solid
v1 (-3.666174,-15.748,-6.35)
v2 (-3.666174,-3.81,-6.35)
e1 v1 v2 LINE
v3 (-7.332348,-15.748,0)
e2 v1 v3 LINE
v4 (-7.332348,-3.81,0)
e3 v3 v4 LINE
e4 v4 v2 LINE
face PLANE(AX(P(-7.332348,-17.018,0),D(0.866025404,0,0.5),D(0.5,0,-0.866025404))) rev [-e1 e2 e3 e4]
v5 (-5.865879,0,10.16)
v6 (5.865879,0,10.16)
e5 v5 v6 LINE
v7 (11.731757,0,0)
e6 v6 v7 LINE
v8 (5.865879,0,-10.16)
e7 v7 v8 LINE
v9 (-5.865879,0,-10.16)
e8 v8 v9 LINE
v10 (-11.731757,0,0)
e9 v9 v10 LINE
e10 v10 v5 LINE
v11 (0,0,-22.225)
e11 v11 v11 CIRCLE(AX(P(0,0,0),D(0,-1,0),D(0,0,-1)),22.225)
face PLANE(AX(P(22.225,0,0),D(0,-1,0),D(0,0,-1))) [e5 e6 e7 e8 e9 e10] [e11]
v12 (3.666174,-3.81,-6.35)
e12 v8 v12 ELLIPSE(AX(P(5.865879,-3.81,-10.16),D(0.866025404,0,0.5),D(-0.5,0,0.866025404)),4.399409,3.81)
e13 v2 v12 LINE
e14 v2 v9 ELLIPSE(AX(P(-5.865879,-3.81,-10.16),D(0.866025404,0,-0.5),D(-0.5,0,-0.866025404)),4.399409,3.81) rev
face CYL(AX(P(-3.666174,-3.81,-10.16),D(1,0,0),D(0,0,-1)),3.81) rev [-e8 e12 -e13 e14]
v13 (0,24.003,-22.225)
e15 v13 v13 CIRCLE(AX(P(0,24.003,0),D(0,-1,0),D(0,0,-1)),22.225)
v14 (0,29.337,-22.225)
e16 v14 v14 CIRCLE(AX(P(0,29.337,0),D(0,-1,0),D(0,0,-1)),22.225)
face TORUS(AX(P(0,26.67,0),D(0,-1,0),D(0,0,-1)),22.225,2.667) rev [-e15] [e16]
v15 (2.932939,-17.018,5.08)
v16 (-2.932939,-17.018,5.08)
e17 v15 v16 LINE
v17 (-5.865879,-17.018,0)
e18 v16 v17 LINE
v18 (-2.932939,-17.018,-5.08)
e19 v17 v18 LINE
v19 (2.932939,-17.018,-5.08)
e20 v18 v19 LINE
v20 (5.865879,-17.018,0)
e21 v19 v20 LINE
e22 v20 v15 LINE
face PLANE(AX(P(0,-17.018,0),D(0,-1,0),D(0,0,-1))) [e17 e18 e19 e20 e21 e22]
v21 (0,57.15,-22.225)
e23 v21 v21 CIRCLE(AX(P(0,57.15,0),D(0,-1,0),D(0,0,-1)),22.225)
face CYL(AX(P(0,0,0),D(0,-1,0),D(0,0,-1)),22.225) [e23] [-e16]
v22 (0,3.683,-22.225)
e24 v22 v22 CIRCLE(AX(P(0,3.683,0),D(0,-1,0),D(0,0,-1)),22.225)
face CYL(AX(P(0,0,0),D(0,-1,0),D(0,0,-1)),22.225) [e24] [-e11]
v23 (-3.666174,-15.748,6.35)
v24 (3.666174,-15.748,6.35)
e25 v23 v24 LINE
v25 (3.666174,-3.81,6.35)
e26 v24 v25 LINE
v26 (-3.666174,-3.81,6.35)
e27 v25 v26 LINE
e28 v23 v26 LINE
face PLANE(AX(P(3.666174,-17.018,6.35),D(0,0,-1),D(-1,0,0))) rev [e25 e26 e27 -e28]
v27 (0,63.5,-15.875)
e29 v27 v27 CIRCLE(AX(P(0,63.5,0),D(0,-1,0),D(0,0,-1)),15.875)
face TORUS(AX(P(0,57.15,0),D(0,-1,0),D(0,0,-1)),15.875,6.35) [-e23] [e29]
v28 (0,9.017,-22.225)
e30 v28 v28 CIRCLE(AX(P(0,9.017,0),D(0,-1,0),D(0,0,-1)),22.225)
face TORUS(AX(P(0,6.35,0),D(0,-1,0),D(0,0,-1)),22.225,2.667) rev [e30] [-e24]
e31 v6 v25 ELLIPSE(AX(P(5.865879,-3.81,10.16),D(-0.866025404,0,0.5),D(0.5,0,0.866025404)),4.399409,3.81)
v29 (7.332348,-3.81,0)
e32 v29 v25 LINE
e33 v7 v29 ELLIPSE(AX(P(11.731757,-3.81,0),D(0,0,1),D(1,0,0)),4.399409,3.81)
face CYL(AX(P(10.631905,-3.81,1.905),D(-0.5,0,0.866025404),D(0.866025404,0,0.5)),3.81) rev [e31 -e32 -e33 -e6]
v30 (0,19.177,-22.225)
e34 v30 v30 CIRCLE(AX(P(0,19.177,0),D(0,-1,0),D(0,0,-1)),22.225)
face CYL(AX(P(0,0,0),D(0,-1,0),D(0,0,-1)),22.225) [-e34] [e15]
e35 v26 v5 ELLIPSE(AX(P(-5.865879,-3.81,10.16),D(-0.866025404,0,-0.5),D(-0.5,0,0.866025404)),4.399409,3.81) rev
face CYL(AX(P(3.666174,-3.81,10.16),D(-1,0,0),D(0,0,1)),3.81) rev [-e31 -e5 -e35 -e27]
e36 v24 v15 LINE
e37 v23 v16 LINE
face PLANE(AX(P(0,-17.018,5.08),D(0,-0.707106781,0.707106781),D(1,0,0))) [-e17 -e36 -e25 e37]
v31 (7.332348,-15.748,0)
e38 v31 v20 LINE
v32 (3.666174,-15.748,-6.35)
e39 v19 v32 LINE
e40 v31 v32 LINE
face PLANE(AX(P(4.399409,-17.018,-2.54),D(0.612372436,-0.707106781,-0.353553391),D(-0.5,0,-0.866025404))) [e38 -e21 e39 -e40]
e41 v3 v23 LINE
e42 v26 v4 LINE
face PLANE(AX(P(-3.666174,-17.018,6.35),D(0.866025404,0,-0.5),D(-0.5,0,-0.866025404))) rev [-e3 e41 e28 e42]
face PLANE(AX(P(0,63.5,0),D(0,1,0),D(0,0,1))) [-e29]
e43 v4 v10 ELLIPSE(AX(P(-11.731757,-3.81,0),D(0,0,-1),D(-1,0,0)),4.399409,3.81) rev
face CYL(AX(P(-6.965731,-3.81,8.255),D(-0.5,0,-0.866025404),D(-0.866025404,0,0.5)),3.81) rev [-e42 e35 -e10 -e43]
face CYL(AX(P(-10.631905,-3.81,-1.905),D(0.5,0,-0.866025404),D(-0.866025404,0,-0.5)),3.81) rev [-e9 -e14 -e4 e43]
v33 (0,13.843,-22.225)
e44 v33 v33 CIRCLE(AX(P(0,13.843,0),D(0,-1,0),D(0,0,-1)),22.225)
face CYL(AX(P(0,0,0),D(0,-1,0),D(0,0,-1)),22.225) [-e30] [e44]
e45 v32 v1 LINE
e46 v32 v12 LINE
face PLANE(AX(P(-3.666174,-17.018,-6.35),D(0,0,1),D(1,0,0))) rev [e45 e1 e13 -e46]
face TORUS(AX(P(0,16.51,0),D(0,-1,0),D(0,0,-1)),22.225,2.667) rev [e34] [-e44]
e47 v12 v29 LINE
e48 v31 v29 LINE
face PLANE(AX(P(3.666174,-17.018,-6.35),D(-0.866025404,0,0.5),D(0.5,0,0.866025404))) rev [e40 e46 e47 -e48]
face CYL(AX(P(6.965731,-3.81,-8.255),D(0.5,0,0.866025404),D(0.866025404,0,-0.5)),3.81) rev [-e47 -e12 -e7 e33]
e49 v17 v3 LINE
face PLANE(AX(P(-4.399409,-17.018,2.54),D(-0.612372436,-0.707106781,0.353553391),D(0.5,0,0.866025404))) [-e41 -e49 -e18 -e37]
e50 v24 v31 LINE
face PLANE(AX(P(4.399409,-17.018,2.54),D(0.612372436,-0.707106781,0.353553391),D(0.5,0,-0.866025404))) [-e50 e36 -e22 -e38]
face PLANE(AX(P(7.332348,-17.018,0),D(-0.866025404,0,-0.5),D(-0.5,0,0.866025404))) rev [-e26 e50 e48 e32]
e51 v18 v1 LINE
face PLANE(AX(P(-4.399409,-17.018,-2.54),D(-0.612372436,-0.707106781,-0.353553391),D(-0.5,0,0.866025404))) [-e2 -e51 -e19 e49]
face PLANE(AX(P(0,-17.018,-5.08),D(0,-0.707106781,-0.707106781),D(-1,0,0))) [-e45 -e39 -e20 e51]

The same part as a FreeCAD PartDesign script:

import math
import FreeCAD as App
import Part
import Sketcher
from FreeCAD import Vector
Q = App.Units.Quantity


def edges_at(feature, points):
    """Names of the edges that pass closest to the given points."""
    edges = feature.Shape.Edges
    near = lambda p: min(range(len(edges)), key=lambda i: edges[i].distToShape(Part.Vertex(*p))[0])
    return sorted({f"Edge{near(p) + 1}" for p in points})

doc = App.newDocument("Part")
body = doc.addObject("PartDesign::Body", "Body")

sketch1 = doc.addObject("Sketcher::SketchObject", "Sketch")
body.addObject(sketch1)
sketch1.AttachmentSupport = (doc.XY_Plane, [""])
sketch1.MapMode = "FlatFace"
sketch1.addGeometry(Part.LineSegment(Vector(0, 63.5, 0), Vector(0, 0, 0)), False)
sketch1.addGeometry(Part.LineSegment(Vector(0, 0, 0), Vector(22.225, 0, 0)), False)
sketch1.addGeometry(Part.LineSegment(Vector(22.225, 0, 0), Vector(22.225, 3.683, 0)), False)
sketch1.addGeometry(Part.ArcOfCircle(Part.Circle(Vector(22.225, 6.35, 0), Vector(0, 0, 1), 2.667), math.radians(90), math.radians(270)), False)
sketch1.addGeometry(Part.LineSegment(Vector(22.225, 9.017, 0), Vector(22.225, 13.843, 0)), False)
sketch1.addGeometry(Part.ArcOfCircle(Part.Circle(Vector(22.225, 16.51, 0), Vector(0, 0, 1), 2.667), math.radians(90), math.radians(270)), False)
sketch1.addGeometry(Part.LineSegment(Vector(22.225, 19.177, 0), Vector(22.225, 24.003, 0)), False)
sketch1.addGeometry(Part.ArcOfCircle(Part.Circle(Vector(22.225, 26.67, 0), Vector(0, 0, 1), 2.667), math.radians(90), math.radians(270)), False)
sketch1.addGeometry(Part.LineSegment(Vector(22.225, 29.337, 0), Vector(22.225, 57.15, 0)), False)
sketch1.addGeometry(Part.ArcOfCircle(Part.Circle(Vector(15.875, 57.15, 0), Vector(0, 0, 1), 6.35), math.radians(0), math.radians(90)), False)
sketch1.addGeometry(Part.LineSegment(Vector(15.875, 63.5, 0), Vector(0, 63.5, 0)), False)
sketch1.addConstraint(Sketcher.Constraint("Coincident", 0, 2, 1, 1))
sketch1.addConstraint(Sketcher.Constraint("Coincident", 1, 2, 2, 1))
sketch1.addConstraint(Sketcher.Constraint("Coincident", 2, 2, 3, 2))
sketch1.addConstraint(Sketcher.Constraint("Coincident", 3, 1, 4, 1))
sketch1.addConstraint(Sketcher.Constraint("Coincident", 4, 2, 5, 2))
sketch1.addConstraint(Sketcher.Constraint("Coincident", 5, 1, 6, 1))
sketch1.addConstraint(Sketcher.Constraint("Coincident", 6, 2, 7, 2))
sketch1.addConstraint(Sketcher.Constraint("Coincident", 7, 1, 8, 1))
sketch1.addConstraint(Sketcher.Constraint("Tangent", 8, 2, 9, 1))
sketch1.addConstraint(Sketcher.Constraint("Tangent", 9, 2, 10, 1))
sketch1.addConstraint(Sketcher.Constraint("Coincident", 10, 2, 0, 1))
sketch1.addConstraint(Sketcher.Constraint("Vertical", 0))
sketch1.addConstraint(Sketcher.Constraint("Horizontal", 1))
sketch1.addConstraint(Sketcher.Constraint("Vertical", 2))
sketch1.addConstraint(Sketcher.Constraint("Vertical", 4))
sketch1.addConstraint(Sketcher.Constraint("Vertical", 6))
sketch1.addConstraint(Sketcher.Constraint("Vertical", 8))
sketch1.addConstraint(Sketcher.Constraint("Horizontal", 10))
sketch1.addConstraint(Sketcher.Constraint("Coincident", 0, 2, -1, 1))
sketch1.addConstraint(Sketcher.Constraint("Equal", 3, 5))
sketch1.addConstraint(Sketcher.Constraint("Equal", 5, 7))
sketch1.addConstraint(Sketcher.Constraint("Vertical", 3, 3, 5, 3))
sketch1.addConstraint(Sketcher.Constraint("Vertical", 5, 3, 7, 3))
sketch1.addConstraint(Sketcher.Constraint("Vertical", 7, 3, 1, 2))
sketch1.addConstraint(Sketcher.Constraint("Vertical", 2, 2, 3, 1))
sketch1.addConstraint(Sketcher.Constraint("Vertical", 4, 2, 5, 1))
sketch1.addConstraint(Sketcher.Constraint("Vertical", 6, 2, 7, 1))
sketch1.addConstraint(Sketcher.Constraint("Equal", 4, 6))
sketch1.addConstraint(Sketcher.Constraint("Radius", 9, Q("0.25 in")))
sketch1.addConstraint(Sketcher.Constraint("DistanceY", 0, 2, 0, 1, Q("2.5 in")))
sketch1.addConstraint(Sketcher.Constraint("Radius", 3, Q("0.105 in")))
sketch1.addConstraint(Sketcher.Constraint("DistanceY", 3, 3, 9, 3, Q("2 in")))
sketch1.addConstraint(Sketcher.Constraint("DistanceY", 4, 1, 4, 2, Q("0.19 in")))
sketch1.addConstraint(Sketcher.Constraint("DistanceX", 1, 1, 1, 2, Q("0.875 in")))
revolution = doc.addObject("PartDesign::Revolution", "Revolution")
body.addObject(revolution)
revolution.Profile = sketch1
revolution.ReferenceAxis = (sketch1, ["V_Axis"])
revolution.Angle = 360

sketch2 = doc.addObject("Sketcher::SketchObject", "Sketch001")
body.addObject(sketch2)
sketch2.AttachmentSupport = (doc.XZ_Plane, [""])
sketch2.MapMode = "FlatFace"
sketch2.addGeometry(Part.LineSegment(Vector(7.332348, 0, 0), Vector(3.666174, 6.35, 0)), False)
sketch2.addGeometry(Part.LineSegment(Vector(3.666174, 6.35, 0), Vector(-3.666174, 6.35, 0)), False)
sketch2.addGeometry(Part.LineSegment(Vector(-3.666174, 6.35, 0), Vector(-7.332348, 0, 0)), False)
sketch2.addGeometry(Part.LineSegment(Vector(-7.332348, 0, 0), Vector(-3.666174, -6.35, 0)), False)
sketch2.addGeometry(Part.LineSegment(Vector(-3.666174, -6.35, 0), Vector(3.666174, -6.35, 0)), False)
sketch2.addGeometry(Part.LineSegment(Vector(3.666174, -6.35, 0), Vector(7.332348, 0, 0)), False)
sketch2.addConstraint(Sketcher.Constraint("Coincident", 0, 2, 1, 1))
sketch2.addConstraint(Sketcher.Constraint("Coincident", 1, 2, 2, 1))
sketch2.addConstraint(Sketcher.Constraint("Coincident", 2, 2, 3, 1))
sketch2.addConstraint(Sketcher.Constraint("Coincident", 3, 2, 4, 1))
sketch2.addConstraint(Sketcher.Constraint("Coincident", 4, 2, 5, 1))
sketch2.addConstraint(Sketcher.Constraint("Coincident", 5, 2, 0, 1))
sketch2.addConstraint(Sketcher.Constraint("Horizontal", 1))
sketch2.addConstraint(Sketcher.Constraint("Horizontal", 4))
sketch2.addConstraint(Sketcher.Constraint("Symmetric", 0, 2, 3, 2, -1, 1))
sketch2.addConstraint(Sketcher.Constraint("Symmetric", 2, 2, 5, 2, -1, 1))
sketch2.addConstraint(Sketcher.Constraint("PointOnObject", 2, 2, -1))
sketch2.addConstraint(Sketcher.Constraint("Parallel", 2, 5))
sketch2.addConstraint(Sketcher.Constraint("Vertical", 1, 2, 3, 2))
sketch2.addConstraint(Sketcher.Constraint("Angle", 0, Q("120 deg")))
sketch2.addConstraint(Sketcher.Constraint("DistanceY", 3, 2, 1, 2, Q("0.5 in")))
sketch2.addConstraint(Sketcher.Constraint("DistanceX", 1, 2, 1, 1, 7.332348))
pad1 = doc.addObject("PartDesign::Pad", "Pad")
body.addObject(pad1)
pad1.Profile = sketch2
pad1.Length = Q("0.67 in")
doc.recompute()

fillet = doc.addObject("PartDesign::Fillet", "Fillet")
body.addObject(fillet)
fillet.Base = (pad1, edges_at(pad1, [
    (5.499, 0, -3.175),
    (5.499, 0, 3.175),
    (0, 0, 6.35),
    (-5.499, 0, 3.175),
    (-5.499, 0, -3.175),
    (0, 0, -6.35),
]))
fillet.Radius = Q("0.15 in")
doc.recompute()

chamfer = doc.addObject("PartDesign::Chamfer", "Chamfer")
body.addObject(chamfer)
chamfer.Base = (fillet, edges_at(fillet, [
    (5.499, -17.018, -3.175),
    (5.499, -17.018, 3.175),
    (0, -17.018, 6.35),
    (-5.499, -17.018, 3.175),
    (-5.499, -17.018, -3.175),
    (0, -17.018, -6.35),
]))
chamfer.Size = Q("0.05 in")

doc.recompute()
